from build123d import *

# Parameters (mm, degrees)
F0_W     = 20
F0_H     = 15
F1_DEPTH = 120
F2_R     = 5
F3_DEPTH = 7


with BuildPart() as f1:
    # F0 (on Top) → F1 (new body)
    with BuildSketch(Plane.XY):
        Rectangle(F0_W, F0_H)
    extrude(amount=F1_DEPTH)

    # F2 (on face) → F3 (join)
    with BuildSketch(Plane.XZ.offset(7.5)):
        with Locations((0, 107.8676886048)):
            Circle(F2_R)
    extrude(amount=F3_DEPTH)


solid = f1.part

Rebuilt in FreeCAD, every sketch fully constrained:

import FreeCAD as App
import Part
import Sketcher
from FreeCAD import Vector

doc = App.newDocument("Part")
body = doc.addObject("PartDesign::Body", "Body")

# Sketch on XY plane
sketch1 = body.newObject("Sketcher::SketchObject", "Sketch")
sketch1.AttachmentSupport = (doc.getObject("XY_Plane"), [""])
sketch1.MapMode = "FlatFace"
sketch1.addGeometry([
    Part.LineSegment(Vector(-10, 8, 0), Vector(-10, -8, 0)),
    Part.LineSegment(Vector(-10, -8, 0), Vector(10, -8, 0)),
    Part.LineSegment(Vector(10, -8, 0), Vector(10, 8, 0)),
    Part.LineSegment(Vector(10, 8, 0), Vector(-10, 8, 0)),
], False)
sketch1.addConstraint([
    Sketcher.Constraint("Coincident", 0, 2, 1, 1),
    Sketcher.Constraint("Coincident", 1, 2, 2, 1),
    Sketcher.Constraint("Coincident", 2, 2, 3, 1),
    Sketcher.Constraint("Coincident", 3, 2, 0, 1),
    Sketcher.Constraint("Vertical", 0),
    Sketcher.Constraint("Horizontal", 1),
    Sketcher.Constraint("Vertical", 2),
    Sketcher.Constraint("Horizontal", 3),
    Sketcher.Constraint("Symmetric", 0, 2, 2, 2, -1, 1),
    Sketcher.Constraint("DistanceX", 1, 1, 1, 2, 20.0),
    Sketcher.Constraint("DistanceY", 0, 2, 0, 1, 15.0),
])
pad1 = body.newObject("PartDesign::Pad", "Pad")
pad1.Profile = sketch1
pad1.Length = 120

# Sketch on XZ plane
sketch2 = body.newObject("Sketcher::SketchObject", "Sketch001")
sketch2.AttachmentSupport = (doc.getObject("XZ_Plane"), [""])
sketch2.MapMode = "FlatFace"
sketch2.AttachmentOffset = App.Placement(Vector(0, 0, 7.5), App.Rotation())
sketch2.addGeometry(Part.Circle(Vector(0, 108, 0), Vector(0, 0, 1), 5), False)
sketch2.addConstraint([
    Sketcher.Constraint("PointOnObject", 0, 3, -2),
    Sketcher.Constraint("Diameter", 0, 10.0),
    Sketcher.Constraint("DistanceY", -1, 1, 0, 3, 107.867689),
])
pad2 = body.newObject("PartDesign::Pad", "Pad001")
pad2.Profile = sketch2
pad2.Length = 7

doc.recompute()
